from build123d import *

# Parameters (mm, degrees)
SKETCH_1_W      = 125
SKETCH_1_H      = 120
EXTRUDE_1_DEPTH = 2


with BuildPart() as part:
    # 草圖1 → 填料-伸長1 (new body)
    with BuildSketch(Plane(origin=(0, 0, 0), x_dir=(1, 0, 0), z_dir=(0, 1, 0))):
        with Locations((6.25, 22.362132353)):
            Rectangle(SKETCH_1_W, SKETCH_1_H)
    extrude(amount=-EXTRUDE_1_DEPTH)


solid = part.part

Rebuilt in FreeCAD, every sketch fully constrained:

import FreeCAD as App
import Part
import Sketcher
from FreeCAD import Vector
Q = App.Units.Quantity

doc = App.newDocument("Part")
body = doc.addObject("PartDesign::Body", "Body")

# Sketch on XZ plane
sketch1 = body.newObject("Sketcher::SketchObject", "Sketch")
sketch1.AttachmentSupport = (doc.getObject("XZ_Plane"), [""])
sketch1.MapMode = "FlatFace"
sketch1.addGeometry([
    Part.LineSegment(Vector(-56.25, -82.362132, 0), Vector(-56.25, 37.637868, 0)),
    Part.LineSegment(Vector(-56.25, 37.637868, 0), Vector(68.75, 37.637868, 0)),
    Part.LineSegment(Vector(68.75, 37.637868, 0), Vector(68.75, -82.362132, 0)),
    Part.LineSegment(Vector(68.75, -82.362132, 0), Vector(-56.25, -82.362132, 0)),
], False)
sketch1.addConstraint([
    Sketcher.Constraint("Coincident", 0, 2, 1, 1),
    Sketcher.Constraint("Coincident", 1, 2, 2, 1),
    Sketcher.Constraint("Coincident", 2, 2, 3, 1),
    Sketcher.Constraint("Coincident", 3, 2, 0, 1),
    Sketcher.Constraint("Vertical", 0),
    Sketcher.Constraint("Horizontal", 1),
    Sketcher.Constraint("Vertical", 2),
    Sketcher.Constraint("Horizontal", 3),
    Sketcher.Constraint("DistanceX", 1, 1, 1, 2, Q("125 mm")),
    Sketcher.Constraint("DistanceY", 0, 1, 0, 2, Q("120 mm")),
    Sketcher.Constraint("DistanceX", 0, 2, -1, 1, Q("56.25 mm")),
    Sketcher.Constraint("DistanceY", -1, 1, 0, 2, Q("37.637868 mm")),
])
pad1 = body.newObject("PartDesign::Pad", "Pad")
pad1.Profile = sketch1
pad1.Length = 2

doc.recompute()
